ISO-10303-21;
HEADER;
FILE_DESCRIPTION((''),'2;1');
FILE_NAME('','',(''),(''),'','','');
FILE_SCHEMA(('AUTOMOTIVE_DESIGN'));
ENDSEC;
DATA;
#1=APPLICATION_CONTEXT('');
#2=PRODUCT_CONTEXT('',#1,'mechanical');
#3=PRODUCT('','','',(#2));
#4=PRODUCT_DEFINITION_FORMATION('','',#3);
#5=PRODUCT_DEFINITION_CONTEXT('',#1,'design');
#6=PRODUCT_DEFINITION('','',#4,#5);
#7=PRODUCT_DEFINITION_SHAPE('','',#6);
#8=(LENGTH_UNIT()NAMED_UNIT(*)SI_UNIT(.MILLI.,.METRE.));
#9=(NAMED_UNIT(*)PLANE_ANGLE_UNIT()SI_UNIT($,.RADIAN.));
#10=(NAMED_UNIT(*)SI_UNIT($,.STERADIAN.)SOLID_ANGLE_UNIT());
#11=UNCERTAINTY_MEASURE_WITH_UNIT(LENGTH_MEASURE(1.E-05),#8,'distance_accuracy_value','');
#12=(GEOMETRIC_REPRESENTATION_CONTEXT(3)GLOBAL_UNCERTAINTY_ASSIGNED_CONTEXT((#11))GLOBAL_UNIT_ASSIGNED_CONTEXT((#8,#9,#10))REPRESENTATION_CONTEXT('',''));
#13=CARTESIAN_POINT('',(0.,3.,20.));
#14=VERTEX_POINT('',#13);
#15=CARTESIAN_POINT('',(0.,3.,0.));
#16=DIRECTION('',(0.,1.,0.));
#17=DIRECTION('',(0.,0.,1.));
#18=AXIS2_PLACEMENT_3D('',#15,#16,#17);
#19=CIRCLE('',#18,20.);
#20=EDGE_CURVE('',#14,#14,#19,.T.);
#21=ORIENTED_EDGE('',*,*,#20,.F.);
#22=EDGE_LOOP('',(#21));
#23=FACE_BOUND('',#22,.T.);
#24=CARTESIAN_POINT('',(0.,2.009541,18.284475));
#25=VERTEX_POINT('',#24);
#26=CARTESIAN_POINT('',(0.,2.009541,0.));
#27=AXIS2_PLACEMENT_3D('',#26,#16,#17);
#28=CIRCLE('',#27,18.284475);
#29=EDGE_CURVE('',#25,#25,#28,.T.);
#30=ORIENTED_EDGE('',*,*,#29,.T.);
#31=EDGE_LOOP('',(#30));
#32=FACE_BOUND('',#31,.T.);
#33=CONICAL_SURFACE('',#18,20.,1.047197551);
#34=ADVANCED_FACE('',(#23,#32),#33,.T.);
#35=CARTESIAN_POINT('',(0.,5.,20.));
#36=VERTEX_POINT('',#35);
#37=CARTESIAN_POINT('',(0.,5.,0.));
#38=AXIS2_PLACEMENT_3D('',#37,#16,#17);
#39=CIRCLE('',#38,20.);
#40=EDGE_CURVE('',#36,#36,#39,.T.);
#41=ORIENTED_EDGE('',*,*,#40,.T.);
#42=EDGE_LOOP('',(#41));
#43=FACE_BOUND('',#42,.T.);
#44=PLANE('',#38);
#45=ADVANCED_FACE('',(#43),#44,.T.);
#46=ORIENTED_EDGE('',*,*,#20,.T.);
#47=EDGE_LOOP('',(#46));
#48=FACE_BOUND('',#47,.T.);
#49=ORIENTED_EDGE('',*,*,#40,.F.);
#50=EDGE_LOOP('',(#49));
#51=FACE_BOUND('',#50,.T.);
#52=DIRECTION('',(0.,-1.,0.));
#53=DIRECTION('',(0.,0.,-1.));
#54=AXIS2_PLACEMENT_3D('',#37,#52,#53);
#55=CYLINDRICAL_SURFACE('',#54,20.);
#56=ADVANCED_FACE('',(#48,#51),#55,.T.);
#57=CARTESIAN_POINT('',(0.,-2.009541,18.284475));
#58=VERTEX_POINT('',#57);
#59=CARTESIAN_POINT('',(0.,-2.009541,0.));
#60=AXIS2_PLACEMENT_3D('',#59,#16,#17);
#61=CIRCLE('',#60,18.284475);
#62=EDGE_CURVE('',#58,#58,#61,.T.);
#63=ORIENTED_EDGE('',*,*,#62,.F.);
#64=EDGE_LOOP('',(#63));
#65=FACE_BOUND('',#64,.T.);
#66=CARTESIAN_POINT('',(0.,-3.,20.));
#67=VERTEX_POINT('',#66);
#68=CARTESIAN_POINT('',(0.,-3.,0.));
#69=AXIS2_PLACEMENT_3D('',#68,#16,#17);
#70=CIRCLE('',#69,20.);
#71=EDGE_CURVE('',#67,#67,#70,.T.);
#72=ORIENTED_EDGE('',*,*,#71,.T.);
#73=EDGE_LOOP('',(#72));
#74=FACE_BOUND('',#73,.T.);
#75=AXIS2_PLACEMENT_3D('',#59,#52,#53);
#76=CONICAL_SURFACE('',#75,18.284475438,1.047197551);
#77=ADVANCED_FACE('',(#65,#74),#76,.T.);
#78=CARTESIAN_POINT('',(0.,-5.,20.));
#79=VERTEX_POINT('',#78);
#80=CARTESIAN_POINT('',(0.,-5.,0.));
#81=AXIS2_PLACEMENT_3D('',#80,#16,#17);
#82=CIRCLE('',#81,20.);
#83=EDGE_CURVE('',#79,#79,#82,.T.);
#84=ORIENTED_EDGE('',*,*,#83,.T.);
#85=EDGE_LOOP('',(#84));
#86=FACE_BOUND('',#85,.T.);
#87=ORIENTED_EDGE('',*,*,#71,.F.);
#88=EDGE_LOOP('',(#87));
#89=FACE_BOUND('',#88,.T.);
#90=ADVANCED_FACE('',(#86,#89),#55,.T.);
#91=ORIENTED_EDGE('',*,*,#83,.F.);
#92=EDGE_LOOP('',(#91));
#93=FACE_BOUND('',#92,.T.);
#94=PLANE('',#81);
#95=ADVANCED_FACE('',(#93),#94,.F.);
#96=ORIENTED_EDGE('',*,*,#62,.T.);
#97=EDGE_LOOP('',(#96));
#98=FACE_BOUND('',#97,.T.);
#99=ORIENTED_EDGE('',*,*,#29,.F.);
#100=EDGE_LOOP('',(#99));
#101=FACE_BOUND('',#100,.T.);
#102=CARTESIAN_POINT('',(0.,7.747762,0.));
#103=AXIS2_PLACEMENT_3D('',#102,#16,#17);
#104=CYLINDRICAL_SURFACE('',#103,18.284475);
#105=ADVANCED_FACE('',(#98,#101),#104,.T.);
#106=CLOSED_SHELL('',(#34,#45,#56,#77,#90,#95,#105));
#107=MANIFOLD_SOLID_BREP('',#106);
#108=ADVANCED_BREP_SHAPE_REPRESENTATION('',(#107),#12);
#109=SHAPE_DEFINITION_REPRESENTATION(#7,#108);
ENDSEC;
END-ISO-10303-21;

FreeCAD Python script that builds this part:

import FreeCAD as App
import Part
import Sketcher
Q = App.Units.Quantity


def add_polygon(sketch, points):
    """Adds a closed chain of lines whose ends are joined by coincident constraints."""
    first, n = sketch.GeometryCount, len(points)
    for a, b in zip(points, points[1:] + points[:1]):
        sketch.addGeometry(Part.LineSegment(App.Vector(*a, 0), App.Vector(*b, 0)), False)
    for i in range(n):
        sketch.addConstraint(Sketcher.Constraint("Coincident", first + i, 2, first + (i + 1) % n, 1))

doc = App.newDocument("Part")
params = doc.addObject("Spreadsheet::Sheet", "Params")
for row, (alias, value) in enumerate([
    ("sketch1_diameter", "40 mm"),
    ("pad1_length", "10 mm"),
    ("sketch2_width", "6 mm"),
    ("groove_angle", "360 deg"),
], start=1):
    params.set(f"A{row}", alias)
    params.set(f"B{row}", "=" + value)
    params.setAlias(f"B{row}", alias)

body = doc.addObject("PartDesign::Body", "Body")

# Sketch on XZ plane
sketch1 = body.newObject("Sketcher::SketchObject", "Sketch")
sketch1.AttachmentSupport = (doc.getObject("XZ_Plane"), [""])
sketch1.MapMode = "FlatFace"
sketch1.addGeometry(Part.Circle(App.Vector(0, 0, 0), App.Vector(0, 0, 1), 20), False)
sketch1.addConstraint([
    Sketcher.Constraint("Coincident", 0, 3, -1, 1),
    Sketcher.Constraint("Diameter", 0, 40.0),
])
sketch1.setExpression("Constraints[1]", "Params.sketch1_diameter")
pad1 = body.newObject("PartDesign::Pad", "Pad")
pad1.Profile = sketch1
pad1.setExpression("Length", "Params.pad1_length")
pad1.Midplane = True

# Sketch on YZ plane
sketch2 = body.newObject("Sketcher::SketchObject", "Sketch001")
sketch2.AttachmentSupport = (doc.getObject("YZ_Plane"), [""])
sketch2.MapMode = "FlatFace"
add_polygon(sketch2, [(3, -20), (2, -18.3), (-2, -18.3), (-3, -20)])  # lines 0-3
sketch2.addConstraint([
    Sketcher.Constraint("Horizontal", 1),
    Sketcher.Constraint("Horizontal", 3),
    Sketcher.Constraint("Equal", 0, 2),
    Sketcher.Constraint("DistanceX", 3, 1, 3, 2, 6.0),
    Sketcher.Constraint("Angle", 0, Q("120 deg")),
    Sketcher.Constraint("DistanceX", 2, 2, -1, 1, 3.0),
    Sketcher.Constraint("DistanceY", 2, 2, -1, 1, 20.0),
    Sketcher.Constraint("DistanceX", 1, 2, 1, 1, 4.019083),
])
sketch2.setExpression("Constraints[7]", "Params.sketch2_width")
groove = body.newObject("PartDesign::Groove", "Groove")
groove.Profile = sketch2
groove.ReferenceAxis = (sketch2, ["H_Axis"])
groove.setExpression("Angle", "Params.groove_angle")

doc.recompute()
